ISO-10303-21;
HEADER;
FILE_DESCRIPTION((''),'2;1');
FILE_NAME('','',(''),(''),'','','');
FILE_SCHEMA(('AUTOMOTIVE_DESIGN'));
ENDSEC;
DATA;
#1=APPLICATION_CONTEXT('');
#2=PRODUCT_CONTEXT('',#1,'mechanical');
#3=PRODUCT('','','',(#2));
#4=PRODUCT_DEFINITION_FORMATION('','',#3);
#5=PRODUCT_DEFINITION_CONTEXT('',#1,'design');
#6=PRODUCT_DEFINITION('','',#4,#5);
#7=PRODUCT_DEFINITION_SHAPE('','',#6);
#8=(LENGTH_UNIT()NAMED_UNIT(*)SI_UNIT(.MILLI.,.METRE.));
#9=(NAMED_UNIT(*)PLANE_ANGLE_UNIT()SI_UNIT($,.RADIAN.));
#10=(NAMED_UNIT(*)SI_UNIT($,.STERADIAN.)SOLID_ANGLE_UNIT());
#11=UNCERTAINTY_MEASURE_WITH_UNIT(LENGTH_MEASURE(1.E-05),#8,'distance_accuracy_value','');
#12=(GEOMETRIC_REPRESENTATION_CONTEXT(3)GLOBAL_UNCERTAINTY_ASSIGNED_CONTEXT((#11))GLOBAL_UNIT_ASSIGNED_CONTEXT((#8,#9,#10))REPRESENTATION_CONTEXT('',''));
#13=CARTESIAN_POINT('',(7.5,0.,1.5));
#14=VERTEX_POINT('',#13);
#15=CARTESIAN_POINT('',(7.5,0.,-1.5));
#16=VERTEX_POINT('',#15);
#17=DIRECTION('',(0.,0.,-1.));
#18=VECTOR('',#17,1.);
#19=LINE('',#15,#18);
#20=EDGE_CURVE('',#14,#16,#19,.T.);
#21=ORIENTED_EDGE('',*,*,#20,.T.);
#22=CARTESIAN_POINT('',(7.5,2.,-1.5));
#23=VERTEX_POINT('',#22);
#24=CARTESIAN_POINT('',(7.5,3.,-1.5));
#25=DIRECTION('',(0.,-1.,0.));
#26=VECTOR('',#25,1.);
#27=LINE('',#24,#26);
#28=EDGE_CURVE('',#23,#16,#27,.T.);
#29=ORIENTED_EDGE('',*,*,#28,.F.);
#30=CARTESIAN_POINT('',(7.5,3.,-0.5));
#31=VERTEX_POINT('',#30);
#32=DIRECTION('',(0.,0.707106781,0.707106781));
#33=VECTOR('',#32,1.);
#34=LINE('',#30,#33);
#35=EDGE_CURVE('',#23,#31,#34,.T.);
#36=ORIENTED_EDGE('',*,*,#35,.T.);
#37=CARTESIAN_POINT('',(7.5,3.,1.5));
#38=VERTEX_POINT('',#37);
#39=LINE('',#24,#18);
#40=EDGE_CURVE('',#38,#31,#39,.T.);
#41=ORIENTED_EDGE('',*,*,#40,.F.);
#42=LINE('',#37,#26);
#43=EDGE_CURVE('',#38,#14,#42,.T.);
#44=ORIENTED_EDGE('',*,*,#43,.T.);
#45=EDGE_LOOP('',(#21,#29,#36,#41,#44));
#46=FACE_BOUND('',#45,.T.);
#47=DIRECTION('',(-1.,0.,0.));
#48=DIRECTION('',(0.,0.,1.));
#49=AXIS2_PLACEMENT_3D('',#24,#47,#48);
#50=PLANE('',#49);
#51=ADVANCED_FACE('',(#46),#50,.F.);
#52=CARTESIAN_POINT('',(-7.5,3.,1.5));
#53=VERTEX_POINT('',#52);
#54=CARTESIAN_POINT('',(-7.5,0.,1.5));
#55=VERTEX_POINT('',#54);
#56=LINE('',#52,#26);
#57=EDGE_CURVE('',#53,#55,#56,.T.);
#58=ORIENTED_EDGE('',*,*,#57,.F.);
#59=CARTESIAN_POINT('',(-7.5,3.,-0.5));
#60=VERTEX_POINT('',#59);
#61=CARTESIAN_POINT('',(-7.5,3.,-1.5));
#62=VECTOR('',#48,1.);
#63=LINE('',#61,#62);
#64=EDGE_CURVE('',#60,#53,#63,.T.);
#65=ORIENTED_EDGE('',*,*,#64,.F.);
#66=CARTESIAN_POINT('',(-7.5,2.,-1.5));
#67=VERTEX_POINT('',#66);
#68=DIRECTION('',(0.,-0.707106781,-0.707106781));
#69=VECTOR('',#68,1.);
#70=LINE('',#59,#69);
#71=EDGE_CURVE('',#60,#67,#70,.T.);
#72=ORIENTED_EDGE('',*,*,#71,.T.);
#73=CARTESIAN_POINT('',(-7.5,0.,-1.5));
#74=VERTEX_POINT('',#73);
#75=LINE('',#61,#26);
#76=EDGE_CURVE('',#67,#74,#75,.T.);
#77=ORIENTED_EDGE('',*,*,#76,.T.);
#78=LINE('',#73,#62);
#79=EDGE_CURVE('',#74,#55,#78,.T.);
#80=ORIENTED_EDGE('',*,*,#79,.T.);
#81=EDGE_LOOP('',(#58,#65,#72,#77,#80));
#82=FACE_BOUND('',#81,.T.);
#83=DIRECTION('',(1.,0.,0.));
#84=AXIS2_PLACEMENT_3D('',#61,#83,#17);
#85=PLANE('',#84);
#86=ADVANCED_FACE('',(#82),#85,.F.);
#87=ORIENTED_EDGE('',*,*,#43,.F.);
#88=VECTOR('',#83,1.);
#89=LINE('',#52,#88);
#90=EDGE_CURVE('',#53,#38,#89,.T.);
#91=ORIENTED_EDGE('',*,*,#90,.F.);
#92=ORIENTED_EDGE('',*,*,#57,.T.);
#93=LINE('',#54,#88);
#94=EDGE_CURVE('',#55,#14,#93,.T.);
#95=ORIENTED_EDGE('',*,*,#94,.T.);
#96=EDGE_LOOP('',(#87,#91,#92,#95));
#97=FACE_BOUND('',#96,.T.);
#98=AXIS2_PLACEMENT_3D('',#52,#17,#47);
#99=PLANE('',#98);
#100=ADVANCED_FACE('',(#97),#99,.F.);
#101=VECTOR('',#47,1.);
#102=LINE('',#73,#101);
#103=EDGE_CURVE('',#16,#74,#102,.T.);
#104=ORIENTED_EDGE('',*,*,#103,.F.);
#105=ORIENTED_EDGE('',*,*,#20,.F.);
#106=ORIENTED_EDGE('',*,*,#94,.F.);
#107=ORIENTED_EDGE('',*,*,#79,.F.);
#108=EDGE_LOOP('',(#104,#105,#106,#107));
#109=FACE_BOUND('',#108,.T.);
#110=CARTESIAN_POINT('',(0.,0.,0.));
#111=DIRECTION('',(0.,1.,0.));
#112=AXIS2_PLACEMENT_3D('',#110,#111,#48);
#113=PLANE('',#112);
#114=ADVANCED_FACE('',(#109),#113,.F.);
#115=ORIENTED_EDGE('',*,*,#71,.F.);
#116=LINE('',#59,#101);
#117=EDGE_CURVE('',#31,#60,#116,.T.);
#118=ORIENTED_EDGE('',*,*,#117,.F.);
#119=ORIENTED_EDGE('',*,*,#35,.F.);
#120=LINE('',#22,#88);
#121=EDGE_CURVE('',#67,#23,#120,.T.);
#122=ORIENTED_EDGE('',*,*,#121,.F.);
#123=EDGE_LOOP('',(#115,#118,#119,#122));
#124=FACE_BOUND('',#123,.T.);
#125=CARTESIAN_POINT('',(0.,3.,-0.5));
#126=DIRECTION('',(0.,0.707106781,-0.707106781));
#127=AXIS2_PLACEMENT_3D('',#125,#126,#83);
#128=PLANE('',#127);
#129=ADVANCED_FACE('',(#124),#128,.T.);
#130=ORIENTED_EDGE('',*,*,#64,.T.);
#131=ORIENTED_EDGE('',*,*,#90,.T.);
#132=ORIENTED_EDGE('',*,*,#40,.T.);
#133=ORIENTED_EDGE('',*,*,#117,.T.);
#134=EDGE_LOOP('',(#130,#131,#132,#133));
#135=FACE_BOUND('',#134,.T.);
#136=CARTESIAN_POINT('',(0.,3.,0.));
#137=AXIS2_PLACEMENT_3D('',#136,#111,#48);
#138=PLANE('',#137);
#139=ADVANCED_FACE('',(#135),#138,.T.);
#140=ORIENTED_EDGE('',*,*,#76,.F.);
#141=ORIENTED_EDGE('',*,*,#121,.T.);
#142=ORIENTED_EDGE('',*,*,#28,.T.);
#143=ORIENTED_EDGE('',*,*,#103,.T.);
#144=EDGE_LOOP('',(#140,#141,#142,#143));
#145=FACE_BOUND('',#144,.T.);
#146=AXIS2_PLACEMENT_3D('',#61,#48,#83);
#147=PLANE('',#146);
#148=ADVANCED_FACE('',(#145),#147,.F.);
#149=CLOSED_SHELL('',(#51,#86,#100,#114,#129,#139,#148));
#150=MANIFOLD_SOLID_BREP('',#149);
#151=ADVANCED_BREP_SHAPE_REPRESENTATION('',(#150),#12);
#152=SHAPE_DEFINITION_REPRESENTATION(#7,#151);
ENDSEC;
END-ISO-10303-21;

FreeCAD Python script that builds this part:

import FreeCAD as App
import Part
import Sketcher
from FreeCAD import Vector


def edges_at(feature, points):
    """Names of the edges that pass closest to the given points."""
    edges = feature.Shape.Edges
    near = lambda p: min(range(len(edges)), key=lambda i: edges[i].distToShape(Part.Vertex(*p))[0])
    return sorted({f"Edge{near(p) + 1}" for p in points})

doc = App.newDocument("Part")
body = doc.addObject("PartDesign::Body", "Body")

# Sketch on XZ plane
sketch1 = body.newObject("Sketcher::SketchObject", "Sketch")
sketch1.AttachmentSupport = (doc.getObject("XZ_Plane"), [""])
sketch1.MapMode = "FlatFace"
sketch1.addGeometry(Part.LineSegment(Vector(-7.5, -1.5, 0), Vector(-7.5, 1.5, 0)), False)
sketch1.addGeometry(Part.LineSegment(Vector(-7.5, 1.5, 0), Vector(7.5, 1.5, 0)), False)
sketch1.addGeometry(Part.LineSegment(Vector(7.5, 1.5, 0), Vector(7.5, -1.5, 0)), False)
sketch1.addGeometry(Part.LineSegment(Vector(7.5, -1.5, 0), Vector(-7.5, -1.5, 0)), False)
sketch1.addConstraint(Sketcher.Constraint("Coincident", 0, 2, 1, 1))
sketch1.addConstraint(Sketcher.Constraint("Coincident", 1, 2, 2, 1))
sketch1.addConstraint(Sketcher.Constraint("Coincident", 2, 2, 3, 1))
sketch1.addConstraint(Sketcher.Constraint("Coincident", 3, 2, 0, 1))
sketch1.addConstraint(Sketcher.Constraint("Vertical", 0))
sketch1.addConstraint(Sketcher.Constraint("Horizontal", 1))
sketch1.addConstraint(Sketcher.Constraint("Vertical", 2))
sketch1.addConstraint(Sketcher.Constraint("Horizontal", 3))
sketch1.addConstraint(Sketcher.Constraint("Symmetric", 0, 2, 2, 2, -1, 1))
sketch1.addConstraint(Sketcher.Constraint("DistanceX", 1, 1, 1, 2, 15.0))
sketch1.addConstraint(Sketcher.Constraint("DistanceY", 0, 1, 0, 2, 3.0))
pad1 = body.newObject("PartDesign::Pad", "Pad")
pad1.Profile = sketch1
pad1.Length = 3
pad1.Reversed = True
doc.recompute()

chamfer = body.newObject("PartDesign::Chamfer", "Chamfer")
chamfer.Base = (pad1, edges_at(pad1, [(0, 3, -1.5)]))
chamfer.Size = 1

doc.recompute()
